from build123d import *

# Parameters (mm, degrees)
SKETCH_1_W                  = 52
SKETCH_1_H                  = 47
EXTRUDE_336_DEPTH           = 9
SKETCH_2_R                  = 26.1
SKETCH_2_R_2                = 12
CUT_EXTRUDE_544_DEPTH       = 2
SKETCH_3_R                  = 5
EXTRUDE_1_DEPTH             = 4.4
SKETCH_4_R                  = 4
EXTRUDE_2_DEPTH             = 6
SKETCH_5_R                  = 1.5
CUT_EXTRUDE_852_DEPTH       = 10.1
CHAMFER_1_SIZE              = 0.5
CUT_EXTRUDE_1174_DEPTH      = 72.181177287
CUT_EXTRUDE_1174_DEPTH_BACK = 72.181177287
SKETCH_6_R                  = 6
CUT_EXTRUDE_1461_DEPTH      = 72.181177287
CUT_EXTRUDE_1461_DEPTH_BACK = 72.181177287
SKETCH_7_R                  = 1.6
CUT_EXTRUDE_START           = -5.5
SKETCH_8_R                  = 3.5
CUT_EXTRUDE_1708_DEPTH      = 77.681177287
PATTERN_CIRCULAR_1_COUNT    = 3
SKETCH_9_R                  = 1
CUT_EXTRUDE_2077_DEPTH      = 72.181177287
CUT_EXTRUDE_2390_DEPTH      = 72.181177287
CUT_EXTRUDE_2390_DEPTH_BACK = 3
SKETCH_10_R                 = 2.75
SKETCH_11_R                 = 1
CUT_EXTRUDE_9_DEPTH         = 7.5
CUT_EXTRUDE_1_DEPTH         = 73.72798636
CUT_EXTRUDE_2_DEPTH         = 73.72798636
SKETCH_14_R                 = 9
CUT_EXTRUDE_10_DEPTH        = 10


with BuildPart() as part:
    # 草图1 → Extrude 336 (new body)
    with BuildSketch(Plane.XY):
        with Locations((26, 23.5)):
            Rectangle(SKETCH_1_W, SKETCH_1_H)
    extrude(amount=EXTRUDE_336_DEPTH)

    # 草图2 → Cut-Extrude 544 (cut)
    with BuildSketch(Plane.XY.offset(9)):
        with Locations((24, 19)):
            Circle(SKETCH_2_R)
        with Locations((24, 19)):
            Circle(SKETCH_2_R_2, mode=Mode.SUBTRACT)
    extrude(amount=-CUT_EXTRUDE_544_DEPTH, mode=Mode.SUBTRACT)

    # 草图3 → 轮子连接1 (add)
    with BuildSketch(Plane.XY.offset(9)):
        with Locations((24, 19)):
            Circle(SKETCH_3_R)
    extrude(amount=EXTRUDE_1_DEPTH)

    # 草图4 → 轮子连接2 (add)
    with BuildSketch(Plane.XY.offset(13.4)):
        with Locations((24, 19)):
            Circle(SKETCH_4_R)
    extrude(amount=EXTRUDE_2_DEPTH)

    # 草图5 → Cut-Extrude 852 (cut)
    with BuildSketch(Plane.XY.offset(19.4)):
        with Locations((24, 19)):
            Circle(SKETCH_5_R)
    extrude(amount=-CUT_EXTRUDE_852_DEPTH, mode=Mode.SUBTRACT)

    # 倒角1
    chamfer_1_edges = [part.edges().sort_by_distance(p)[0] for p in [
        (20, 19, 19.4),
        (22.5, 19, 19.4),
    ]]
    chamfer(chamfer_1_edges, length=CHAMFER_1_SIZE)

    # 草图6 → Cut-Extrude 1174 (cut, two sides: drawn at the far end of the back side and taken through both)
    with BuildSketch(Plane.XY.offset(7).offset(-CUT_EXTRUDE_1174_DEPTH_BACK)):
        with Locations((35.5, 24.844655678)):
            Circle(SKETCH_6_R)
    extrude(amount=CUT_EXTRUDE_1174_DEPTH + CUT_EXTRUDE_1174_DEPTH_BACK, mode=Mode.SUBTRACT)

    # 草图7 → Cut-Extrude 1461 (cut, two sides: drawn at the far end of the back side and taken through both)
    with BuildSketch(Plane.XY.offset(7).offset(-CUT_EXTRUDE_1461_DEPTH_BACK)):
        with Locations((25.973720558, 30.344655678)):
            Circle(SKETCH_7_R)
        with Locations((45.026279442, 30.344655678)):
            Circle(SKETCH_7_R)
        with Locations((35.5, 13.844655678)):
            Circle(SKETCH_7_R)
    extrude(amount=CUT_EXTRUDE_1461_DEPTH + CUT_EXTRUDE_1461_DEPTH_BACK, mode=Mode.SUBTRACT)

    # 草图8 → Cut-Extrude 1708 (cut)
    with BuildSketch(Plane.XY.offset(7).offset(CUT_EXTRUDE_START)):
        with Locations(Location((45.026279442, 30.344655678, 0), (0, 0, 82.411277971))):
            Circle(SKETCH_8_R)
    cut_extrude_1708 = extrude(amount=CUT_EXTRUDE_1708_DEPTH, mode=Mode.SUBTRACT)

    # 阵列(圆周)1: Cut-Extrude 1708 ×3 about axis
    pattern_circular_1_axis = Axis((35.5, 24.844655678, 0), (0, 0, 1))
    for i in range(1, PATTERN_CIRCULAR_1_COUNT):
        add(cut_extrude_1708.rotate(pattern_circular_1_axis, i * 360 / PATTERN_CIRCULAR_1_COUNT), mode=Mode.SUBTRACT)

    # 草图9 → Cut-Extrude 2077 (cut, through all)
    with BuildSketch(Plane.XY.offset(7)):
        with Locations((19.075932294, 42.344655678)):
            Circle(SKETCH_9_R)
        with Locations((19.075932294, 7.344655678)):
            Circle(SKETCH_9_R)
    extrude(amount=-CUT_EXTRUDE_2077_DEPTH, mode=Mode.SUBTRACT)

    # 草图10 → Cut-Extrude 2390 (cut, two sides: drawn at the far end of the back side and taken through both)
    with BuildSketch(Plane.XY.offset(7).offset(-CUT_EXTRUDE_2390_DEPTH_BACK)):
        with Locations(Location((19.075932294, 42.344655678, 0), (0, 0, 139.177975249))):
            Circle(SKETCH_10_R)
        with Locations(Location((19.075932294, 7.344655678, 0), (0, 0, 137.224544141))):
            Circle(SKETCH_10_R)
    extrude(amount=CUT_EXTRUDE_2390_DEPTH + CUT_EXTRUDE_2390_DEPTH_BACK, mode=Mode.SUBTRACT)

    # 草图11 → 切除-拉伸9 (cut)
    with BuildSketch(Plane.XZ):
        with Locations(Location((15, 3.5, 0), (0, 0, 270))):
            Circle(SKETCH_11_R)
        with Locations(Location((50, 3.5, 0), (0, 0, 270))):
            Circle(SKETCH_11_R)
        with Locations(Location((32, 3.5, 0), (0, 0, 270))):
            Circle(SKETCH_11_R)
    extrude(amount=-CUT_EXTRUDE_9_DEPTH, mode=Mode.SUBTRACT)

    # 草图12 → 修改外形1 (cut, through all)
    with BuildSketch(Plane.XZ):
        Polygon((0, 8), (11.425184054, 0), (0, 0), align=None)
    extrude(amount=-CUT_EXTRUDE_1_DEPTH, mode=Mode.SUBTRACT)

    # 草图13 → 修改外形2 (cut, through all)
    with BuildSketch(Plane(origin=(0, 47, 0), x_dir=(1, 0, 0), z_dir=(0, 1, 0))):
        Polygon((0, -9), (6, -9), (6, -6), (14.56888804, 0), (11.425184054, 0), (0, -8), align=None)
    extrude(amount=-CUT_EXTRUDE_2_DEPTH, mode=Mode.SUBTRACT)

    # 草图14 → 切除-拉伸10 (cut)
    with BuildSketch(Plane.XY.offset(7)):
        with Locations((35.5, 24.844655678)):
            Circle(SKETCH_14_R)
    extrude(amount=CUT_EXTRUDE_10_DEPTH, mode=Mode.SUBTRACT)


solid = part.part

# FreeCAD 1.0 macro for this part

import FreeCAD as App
import Part
import Sketcher
from FreeCAD import Vector
Q = App.Units.Quantity


def edges_at(feature, points):
    """Names of the edges that pass closest to the given points."""
    edges = feature.Shape.Edges
    near = lambda p: min(range(len(edges)), key=lambda i: edges[i].distToShape(Part.Vertex(*p))[0])
    return sorted({f"Edge{near(p) + 1}" for p in points})

doc = App.newDocument("Part")
params = doc.addObject("Spreadsheet::Sheet", "Params")
for row, (alias, value) in enumerate([
    ("sketch1_width", "52 mm"),
    ("sketch1_height", "47 mm"),
    ("pad1_length", "9 mm"),
    ("sketch2_diameter", "24 mm"),
    ("sketch2_diameter2", "52.2 mm"),
    ("pocket1_length", "2 mm"),
    ("sketch3_diameter", "10 mm"),
    ("pad2_length", "4.4 mm"),
    ("sketch4_diameter", "8 mm"),
    ("pad3_length", "6 mm"),
    ("sketch5_diameter", "3 mm"),
    ("pocket2_length", "10.1 mm"),
    ("chamfer_size", "0.5 mm"),
    ("sketch6_diameter", "12 mm"),
    ("sketch7_diameter", "3.2 mm"),
    ("sketch8_diameter", "7 mm"),
    ("pocket5_length", "77.681177 mm"),
    ("sketch9_diameter", "2 mm"),
    ("sketch10_diameter", "5.5 mm"),
    ("pocket7_length", "72.181177 mm"),
    ("pocket7_length2", "3 mm"),
    ("sketch11_diameter", "2 mm"),
    ("pocket8_length", "7.5 mm"),
    ("sketch12_height", "8 mm"),
    ("sketch13_width", "6 mm"),
    ("sketch13_height", "3 mm"),
    ("sketch13_height2", "1 mm"),
    ("sketch14_diameter", "18 mm"),
    ("pocket11_length", "10 mm"),
], start=1):
    params.set(f"A{row}", alias)
    params.set(f"B{row}", "=" + value)
    params.setAlias(f"B{row}", alias)

body = doc.addObject("PartDesign::Body", "Body")

sketch1 = body.newObject("Sketcher::SketchObject", "Sketch")
sketch1.AttachmentSupport = (doc.getObject("XY_Plane"), [""])
sketch1.MapMode = "FlatFace"
sketch1.addGeometry(Part.LineSegment(Vector(0, 47, 0), Vector(0, 0, 0)), False)
sketch1.addGeometry(Part.LineSegment(Vector(0, 0, 0), Vector(52, 0, 0)), False)
sketch1.addGeometry(Part.LineSegment(Vector(52, 0, 0), Vector(52, 47, 0)), False)
sketch1.addGeometry(Part.LineSegment(Vector(52, 47, 0), Vector(0, 47, 0)), False)
sketch1.addConstraint(Sketcher.Constraint("Coincident", 0, 2, 1, 1))
sketch1.addConstraint(Sketcher.Constraint("Coincident", 1, 2, 2, 1))
sketch1.addConstraint(Sketcher.Constraint("Coincident", 2, 2, 3, 1))
sketch1.addConstraint(Sketcher.Constraint("Coincident", 3, 2, 0, 1))
sketch1.addConstraint(Sketcher.Constraint("Vertical", 0))
sketch1.addConstraint(Sketcher.Constraint("Horizontal", 1))
sketch1.addConstraint(Sketcher.Constraint("Vertical", 2))
sketch1.addConstraint(Sketcher.Constraint("Horizontal", 3))
sketch1.addConstraint(Sketcher.Constraint("Coincident", 0, 2, -1, 1))
sketch1.addConstraint(Sketcher.Constraint("DistanceX", 1, 1, 1, 2, 52.0))
sketch1.addConstraint(Sketcher.Constraint("DistanceY", 0, 2, 0, 1, 47.0))
sketch1.setExpression("Constraints[9]", "Params.sketch1_width")
sketch1.setExpression("Constraints[10]", "Params.sketch1_height")
pad1 = body.newObject("PartDesign::Pad", "Pad")
pad1.Profile = sketch1
pad1.setExpression("Length", "Params.pad1_length")

sketch2 = body.newObject("Sketcher::SketchObject", "Sketch001")
sketch2.AttachmentSupport = (doc.getObject("XY_Plane"), [""])
sketch2.MapMode = "FlatFace"
sketch2.AttachmentOffset = App.Placement(Vector(0, 0, 9), App.Rotation())
sketch2.addGeometry(Part.Circle(Vector(24, 19, 0), Vector(0, 0, 1), 26.1), False)
sketch2.addGeometry(Part.Circle(Vector(24, 19, 0), Vector(0, 0, 1), 12), False)
sketch2.addConstraint(Sketcher.Constraint("Coincident", 1, 3, 0, 3))
sketch2.addConstraint(Sketcher.Constraint("Diameter", 1, 24.0))
sketch2.addConstraint(Sketcher.Constraint("Diameter", 0, 52.2))
sketch2.addConstraint(Sketcher.Constraint("DistanceX", -1, 1, 0, 3, 24.0))
sketch2.addConstraint(Sketcher.Constraint("DistanceY", -1, 1, 0, 3, 19.0))
sketch2.setExpression("Constraints[1]", "Params.sketch2_diameter")
sketch2.setExpression("Constraints[2]", "Params.sketch2_diameter2")
pocket1 = body.newObject("PartDesign::Pocket", "Pocket")
pocket1.Profile = sketch2
pocket1.setExpression("Length", "Params.pocket1_length")

sketch3 = body.newObject("Sketcher::SketchObject", "Sketch002")
sketch3.AttachmentSupport = (doc.getObject("XY_Plane"), [""])
sketch3.MapMode = "FlatFace"
sketch3.AttachmentOffset = App.Placement(Vector(0, 0, 9), App.Rotation())
sketch3.addGeometry(Part.Circle(Vector(24, 19, 0), Vector(0, 0, 1), 5), False)
sketch3.addConstraint(Sketcher.Constraint("Diameter", 0, 10.0))
sketch3.addConstraint(Sketcher.Constraint("DistanceX", -1, 1, 0, 3, 24.0))
sketch3.addConstraint(Sketcher.Constraint("DistanceY", -1, 1, 0, 3, 19.0))
sketch3.setExpression("Constraints[0]", "Params.sketch3_diameter")
pad2 = body.newObject("PartDesign::Pad", "Pad001")
pad2.Profile = sketch3
pad2.setExpression("Length", "Params.pad2_length")

sketch4 = body.newObject("Sketcher::SketchObject", "Sketch003")
sketch4.AttachmentSupport = (doc.getObject("XY_Plane"), [""])
sketch4.MapMode = "FlatFace"
sketch4.AttachmentOffset = App.Placement(Vector(0, 0, 13.4), App.Rotation())
sketch4.addGeometry(Part.Circle(Vector(24, 19, 0), Vector(0, 0, 1), 4), False)
sketch4.addConstraint(Sketcher.Constraint("Diameter", 0, 8.0))
sketch4.addConstraint(Sketcher.Constraint("DistanceX", -1, 1, 0, 3, 24.0))
sketch4.addConstraint(Sketcher.Constraint("DistanceY", -1, 1, 0, 3, 19.0))
sketch4.setExpression("Constraints[0]", "Params.sketch4_diameter")
pad3 = body.newObject("PartDesign::Pad", "Pad002")
pad3.Profile = sketch4
pad3.setExpression("Length", "Params.pad3_length")

sketch5 = body.newObject("Sketcher::SketchObject", "Sketch004")
sketch5.AttachmentSupport = (doc.getObject("XY_Plane"), [""])
sketch5.MapMode = "FlatFace"
sketch5.AttachmentOffset = App.Placement(Vector(0, 0, 19.4), App.Rotation())
sketch5.addGeometry(Part.Circle(Vector(24, 19, 0), Vector(0, 0, 1), 1.5), False)
sketch5.addConstraint(Sketcher.Constraint("Diameter", 0, 3.0))
sketch5.addConstraint(Sketcher.Constraint("DistanceX", -1, 1, 0, 3, 24.0))
sketch5.addConstraint(Sketcher.Constraint("DistanceY", -1, 1, 0, 3, 19.0))
sketch5.setExpression("Constraints[0]", "Params.sketch5_diameter")
pocket2 = body.newObject("PartDesign::Pocket", "Pocket001")
pocket2.Profile = sketch5
pocket2.setExpression("Length", "Params.pocket2_length")
doc.recompute()

chamfer = body.newObject("PartDesign::Chamfer", "Chamfer")
chamfer.Base = (pocket2, edges_at(pocket2, [(20, 19, 19.4), (22.5, 19, 19.4)]))
chamfer.setExpression("Size", "Params.chamfer_size")

sketch6 = body.newObject("Sketcher::SketchObject", "Sketch005")
sketch6.AttachmentSupport = (doc.getObject("XY_Plane"), [""])
sketch6.MapMode = "FlatFace"
sketch6.AttachmentOffset = App.Placement(Vector(0, 0, 7), App.Rotation())
sketch6.addGeometry(Part.Circle(Vector(35.5, 24.844656, 0), Vector(0, 0, 1), 6), False)
sketch6.addConstraint(Sketcher.Constraint("Diameter", 0, 12.0))
sketch6.addConstraint(Sketcher.Constraint("DistanceX", -1, 1, 0, 3, 35.5))
sketch6.addConstraint(Sketcher.Constraint("DistanceY", -1, 1, 0, 3, 24.844656))
sketch6.setExpression("Constraints[0]", "Params.sketch6_diameter")
pocket3 = body.newObject("PartDesign::Pocket", "Pocket002")
pocket3.Profile = sketch6
pocket3.Type = "ThroughAll"
pocket3.Midplane = True

sketch7 = body.newObject("Sketcher::SketchObject", "Sketch006")
sketch7.AttachmentSupport = (doc.getObject("XY_Plane"), [""])
sketch7.MapMode = "FlatFace"
sketch7.AttachmentOffset = App.Placement(Vector(0, 0, 7), App.Rotation())
sketch7.addGeometry(Part.Circle(Vector(25.973721, 30.344656, 0), Vector(0, 0, 1), 1.6), False)
sketch7.addGeometry(Part.Circle(Vector(45.026279, 30.344656, 0), Vector(0, 0, 1), 1.6), False)
sketch7.addGeometry(Part.Circle(Vector(35.5, 13.844656, 0), Vector(0, 0, 1), 1.6), False)
sketch7.addConstraint(Sketcher.Constraint("Equal", 0, 1))
sketch7.addConstraint(Sketcher.Constraint("Equal", 1, 2))
sketch7.addConstraint(Sketcher.Constraint("Horizontal", 0, 3, 1, 3))
sketch7.addConstraint(Sketcher.Constraint("Diameter", 0, 3.2))
sketch7.addConstraint(Sketcher.Constraint("DistanceX", -1, 1, 2, 3, 35.5))
sketch7.addConstraint(Sketcher.Constraint("DistanceY", 2, 3, 0, 3, 16.5))
sketch7.addConstraint(Sketcher.Constraint("DistanceX", -1, 1, 0, 3, 25.973721))
sketch7.addConstraint(Sketcher.Constraint("DistanceX", -1, 1, 1, 3, 45.026279))
sketch7.addConstraint(Sketcher.Constraint("DistanceY", -1, 1, 0, 3, 30.344656))
sketch7.setExpression("Constraints[3]", "Params.sketch7_diameter")
pocket4 = body.newObject("PartDesign::Pocket", "Pocket003")
pocket4.Profile = sketch7
pocket4.Type = "ThroughAll"
pocket4.Midplane = True

sketch8 = body.newObject("Sketcher::SketchObject", "Sketch007")
sketch8.AttachmentSupport = (doc.getObject("XY_Plane"), [""])
sketch8.MapMode = "FlatFace"
sketch8.AttachmentOffset = App.Placement(Vector(0, 0, 1.5), App.Rotation())
sketch8.addGeometry(Part.Circle(Vector(45.026279, 30.344656, 0), Vector(0, 0, 1), 3.5), False)
sketch8.addConstraint(Sketcher.Constraint("Diameter", 0, 7.0))
sketch8.addConstraint(Sketcher.Constraint("DistanceX", -1, 1, 0, 3, 45.026279))
sketch8.addConstraint(Sketcher.Constraint("DistanceY", -1, 1, 0, 3, 30.344656))
sketch8.setExpression("Constraints[0]", "Params.sketch8_diameter")
pocket5 = body.newObject("PartDesign::Pocket", "Pocket004")
pocket5.Profile = sketch8
pocket5.setExpression("Length", "Params.pocket5_length")
pocket5.Reversed = True
doc.recompute()

datumline = body.newObject("PartDesign::Line", "DatumLine")
datumline.Placement = App.Placement(Vector(35.5, 24.844656, 0), App.Rotation(Vector(0, 0, 1), Vector(0, 0, 1)))
polarpattern = body.newObject("PartDesign::PolarPattern", "PolarPattern")
polarpattern.Originals = [pocket5]
polarpattern.Axis = (datumline, [""])
polarpattern.Angle = 360
polarpattern.Occurrences = 3
body.Tip = polarpattern

sketch9 = body.newObject("Sketcher::SketchObject", "Sketch008")
sketch9.AttachmentSupport = (doc.getObject("XY_Plane"), [""])
sketch9.MapMode = "FlatFace"
sketch9.AttachmentOffset = App.Placement(Vector(0, 0, 7), App.Rotation())
sketch9.addGeometry(Part.Circle(Vector(19.075932, 42.344656, 0), Vector(0, 0, 1), 1), False)
sketch9.addGeometry(Part.Circle(Vector(19.075932, 7.344656, 0), Vector(0, 0, 1), 1), False)
sketch9.addConstraint(Sketcher.Constraint("Equal", 0, 1))
sketch9.addConstraint(Sketcher.Constraint("Vertical", 0, 3, 1, 3))
sketch9.addConstraint(Sketcher.Constraint("Diameter", 0, 2.0))
sketch9.addConstraint(Sketcher.Constraint("DistanceY", 1, 3, 0, 3, 35.0))
sketch9.addConstraint(Sketcher.Constraint("DistanceX", -1, 1, 0, 3, 19.075932))
sketch9.addConstraint(Sketcher.Constraint("DistanceY", -1, 1, 0, 3, 42.344656))
sketch9.setExpression("Constraints[2]", "Params.sketch9_diameter")
pocket6 = body.newObject("PartDesign::Pocket", "Pocket005")
pocket6.Profile = sketch9
pocket6.Type = "ThroughAll"

sketch10 = body.newObject("Sketcher::SketchObject", "Sketch009")
sketch10.AttachmentSupport = (doc.getObject("XY_Plane"), [""])
sketch10.MapMode = "FlatFace"
sketch10.AttachmentOffset = App.Placement(Vector(0, 0, 7), App.Rotation())
sketch10.addGeometry(Part.Circle(Vector(19.075932, 42.344656, 0), Vector(0, 0, 1), 2.75), False)
sketch10.addGeometry(Part.Circle(Vector(19.075932, 7.344656, 0), Vector(0, 0, 1), 2.75), False)
sketch10.addConstraint(Sketcher.Constraint("Equal", 0, 1))
sketch10.addConstraint(Sketcher.Constraint("Vertical", 0, 3, 1, 3))
sketch10.addConstraint(Sketcher.Constraint("Diameter", 0, 5.5))
sketch10.addConstraint(Sketcher.Constraint("DistanceY", 1, 3, 0, 3, 35.0))
sketch10.addConstraint(Sketcher.Constraint("DistanceX", -1, 1, 0, 3, 19.075932))
sketch10.addConstraint(Sketcher.Constraint("DistanceY", -1, 1, 0, 3, 42.344656))
sketch10.setExpression("Constraints[2]", "Params.sketch10_diameter")
pocket7 = body.newObject("PartDesign::Pocket", "Pocket006")
pocket7.Profile = sketch10
pocket7.Type = "TwoLengths"
pocket7.setExpression("Length", "Params.pocket7_length")
pocket7.setExpression("Length2", "Params.pocket7_length2")
pocket7.Reversed = True

sketch11 = body.newObject("Sketcher::SketchObject", "Sketch010")
sketch11.AttachmentSupport = (doc.getObject("XZ_Plane"), [""])
sketch11.MapMode = "FlatFace"
sketch11.addGeometry(Part.Circle(Vector(15, 3.5, 0), Vector(0, 0, 1), 1), False)
sketch11.addGeometry(Part.Circle(Vector(50, 3.5, 0), Vector(0, 0, 1), 1), False)
sketch11.addGeometry(Part.Circle(Vector(32, 3.5, 0), Vector(0, 0, 1), 1), False)
sketch11.addConstraint(Sketcher.Constraint("Equal", 0, 1))
sketch11.addConstraint(Sketcher.Constraint("Equal", 1, 2))
sketch11.addConstraint(Sketcher.Constraint("Horizontal", 0, 3, 1, 3))
sketch11.addConstraint(Sketcher.Constraint("Horizontal", 1, 3, 2, 3))
sketch11.addConstraint(Sketcher.Constraint("Diameter", 0, 2.0))
sketch11.addConstraint(Sketcher.Constraint("DistanceX", -1, 1, 0, 3, 15.0))
sketch11.addConstraint(Sketcher.Constraint("DistanceX", -1, 1, 1, 3, 50.0))
sketch11.addConstraint(Sketcher.Constraint("DistanceX", -1, 1, 2, 3, 32.0))
sketch11.addConstraint(Sketcher.Constraint("DistanceY", -1, 1, 0, 3, 3.5))
sketch11.setExpression("Constraints[4]", "Params.sketch11_diameter")
pocket8 = body.newObject("PartDesign::Pocket", "Pocket007")
pocket8.Profile = sketch11
pocket8.setExpression("Length", "Params.pocket8_length")

sketch12 = body.newObject("Sketcher::SketchObject", "Sketch011")
sketch12.AttachmentSupport = (doc.getObject("XZ_Plane"), [""])
sketch12.MapMode = "FlatFace"
sketch12.addGeometry(Part.LineSegment(Vector(11.425184, 0, 0), Vector(0, 8, 0)), False)
sketch12.addGeometry(Part.LineSegment(Vector(0, 8, 0), Vector(0, 0, 0)), False)
sketch12.addGeometry(Part.LineSegment(Vector(0, 0, 0), Vector(11.425184, 0, 0)), False)
sketch12.addConstraint(Sketcher.Constraint("Coincident", 0, 2, 1, 1))
sketch12.addConstraint(Sketcher.Constraint("Coincident", 1, 2, 2, 1))
sketch12.addConstraint(Sketcher.Constraint("Coincident", 2, 2, 0, 1))
sketch12.addConstraint(Sketcher.Constraint("Vertical", 1))
sketch12.addConstraint(Sketcher.Constraint("Horizontal", 2))
sketch12.addConstraint(Sketcher.Constraint("Coincident", 1, 2, -1, 1))
sketch12.addConstraint(Sketcher.Constraint("DistanceY", 1, 2, 1, 1, 8.0))
sketch12.addConstraint(Sketcher.Constraint("Angle", 0, Q("145 deg")))
sketch12.setExpression("Constraints[6]", "Params.sketch12_height")
pocket9 = body.newObject("PartDesign::Pocket", "Pocket008")
pocket9.Profile = sketch12
pocket9.Type = "ThroughAll"

sketch13 = body.newObject("Sketcher::SketchObject", "Sketch012")
sketch13.AttachmentSupport = (doc.getObject("XZ_Plane"), [""])
sketch13.MapMode = "FlatFace"
sketch13.AttachmentOffset = App.Placement(Vector(0, 0, -47), App.Rotation())
sketch13.addGeometry(Part.LineSegment(Vector(0, 9, 0), Vector(6, 9, 0)), False)
sketch13.addGeometry(Part.LineSegment(Vector(6, 9, 0), Vector(6, 6, 0)), False)
sketch13.addGeometry(Part.LineSegment(Vector(6, 6, 0), Vector(14.568888, 0, 0)), False)
sketch13.addGeometry(Part.LineSegment(Vector(14.568888, 0, 0), Vector(11.425184, 0, 0)), False)
sketch13.addGeometry(Part.LineSegment(Vector(11.425184, 0, 0), Vector(0, 8, 0)), False)
sketch13.addGeometry(Part.LineSegment(Vector(0, 8, 0), Vector(0, 9, 0)), False)
sketch13.addConstraint(Sketcher.Constraint("Coincident", 0, 2, 1, 1))
sketch13.addConstraint(Sketcher.Constraint("Coincident", 1, 2, 2, 1))
sketch13.addConstraint(Sketcher.Constraint("Coincident", 2, 2, 3, 1))
sketch13.addConstraint(Sketcher.Constraint("Coincident", 3, 2, 4, 1))
sketch13.addConstraint(Sketcher.Constraint("Coincident", 4, 2, 5, 1))
sketch13.addConstraint(Sketcher.Constraint("Coincident", 5, 2, 0, 1))
sketch13.addConstraint(Sketcher.Constraint("Horizontal", 0))
sketch13.addConstraint(Sketcher.Constraint("Vertical", 1))
sketch13.addConstraint(Sketcher.Constraint("Horizontal", 3))
sketch13.addConstraint(Sketcher.Constraint("Vertical", 5))
sketch13.addConstraint(Sketcher.Constraint("PointOnObject", 2, 2, -1))
sketch13.addConstraint(Sketcher.Constraint("PointOnObject", 4, 2, -2))
sketch13.addConstraint(Sketcher.Constraint("Parallel", 2, 4))
sketch13.addConstraint(Sketcher.Constraint("DistanceX", 0, 1, 0, 2, 6.0))
sketch13.addConstraint(Sketcher.Constraint("DistanceY", 1, 2, 1, 1, 3.0))
sketch13.addConstraint(Sketcher.Constraint("DistanceY", 5, 1, 5, 2, 1.0))
sketch13.addConstraint(Sketcher.Constraint("Angle", 2, Q("-35 deg")))
sketch13.addConstraint(Sketcher.Constraint("DistanceY", -1, 1, 0, 2, 9.0))
sketch13.setExpression("Constraints[13]", "Params.sketch13_width")
sketch13.setExpression("Constraints[14]", "Params.sketch13_height")
sketch13.setExpression("Constraints[15]", "Params.sketch13_height2")
pocket10 = body.newObject("PartDesign::Pocket", "Pocket009")
pocket10.Profile = sketch13
pocket10.Type = "ThroughAll"
pocket10.Reversed = True

sketch14 = body.newObject("Sketcher::SketchObject", "Sketch013")
sketch14.AttachmentSupport = (doc.getObject("XY_Plane"), [""])
sketch14.MapMode = "FlatFace"
sketch14.AttachmentOffset = App.Placement(Vector(0, 0, 7), App.Rotation())
sketch14.addGeometry(Part.Circle(Vector(35.5, 24.844656, 0), Vector(0, 0, 1), 9), False)
sketch14.addConstraint(Sketcher.Constraint("Diameter", 0, 18.0))
sketch14.addConstraint(Sketcher.Constraint("DistanceX", -1, 1, 0, 3, 35.5))
sketch14.addConstraint(Sketcher.Constraint("DistanceY", -1, 1, 0, 3, 24.844656))
sketch14.setExpression("Constraints[0]", "Params.sketch14_diameter")
pocket11 = body.newObject("PartDesign::Pocket", "Pocket010")
pocket11.Profile = sketch14
pocket11.setExpression("Length", "Params.pocket11_length")
pocket11.Reversed = True

doc.recompute()
